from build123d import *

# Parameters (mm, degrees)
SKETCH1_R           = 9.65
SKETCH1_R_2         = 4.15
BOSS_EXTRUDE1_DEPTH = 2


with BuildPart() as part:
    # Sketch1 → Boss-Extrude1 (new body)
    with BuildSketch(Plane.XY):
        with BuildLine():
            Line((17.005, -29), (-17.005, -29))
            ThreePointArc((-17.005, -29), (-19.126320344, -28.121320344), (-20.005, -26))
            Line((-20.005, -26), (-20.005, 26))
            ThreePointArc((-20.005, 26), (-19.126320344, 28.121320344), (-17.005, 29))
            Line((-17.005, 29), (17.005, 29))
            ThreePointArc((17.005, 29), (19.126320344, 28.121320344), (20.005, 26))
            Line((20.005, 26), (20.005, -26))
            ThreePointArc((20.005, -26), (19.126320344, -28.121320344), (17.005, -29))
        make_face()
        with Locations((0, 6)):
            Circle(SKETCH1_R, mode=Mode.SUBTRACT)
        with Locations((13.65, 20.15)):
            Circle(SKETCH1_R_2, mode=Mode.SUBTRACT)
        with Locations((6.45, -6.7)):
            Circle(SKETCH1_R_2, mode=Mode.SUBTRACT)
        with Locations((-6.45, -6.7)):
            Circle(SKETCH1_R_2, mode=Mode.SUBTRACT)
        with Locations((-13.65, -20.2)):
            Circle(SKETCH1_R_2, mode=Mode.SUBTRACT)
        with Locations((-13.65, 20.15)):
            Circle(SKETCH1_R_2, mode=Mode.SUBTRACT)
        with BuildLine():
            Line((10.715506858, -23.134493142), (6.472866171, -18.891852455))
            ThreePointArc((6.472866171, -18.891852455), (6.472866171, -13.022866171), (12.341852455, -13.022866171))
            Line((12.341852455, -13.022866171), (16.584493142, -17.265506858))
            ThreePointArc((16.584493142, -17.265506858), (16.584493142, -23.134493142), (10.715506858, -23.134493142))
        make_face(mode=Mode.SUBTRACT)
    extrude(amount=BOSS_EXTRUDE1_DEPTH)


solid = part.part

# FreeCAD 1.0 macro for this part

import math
import FreeCAD as App
import Part
import Sketcher

V = App.Vector
Q = App.Units.Quantity

doc = App.newDocument("Part")
params = doc.addObject("Spreadsheet::Sheet", "Params")
for row, (alias, value) in enumerate([
    ("sketch1_radius", "3 mm"),
    ("sketch1_diameter", "8.3 mm"),
    ("sketch1_diameter2", "19.3 mm"),
    ("sketch1_height", "52 mm"),
    ("sketch1_length", "6 mm"),
    ("pad1_length", "2 mm"),
], start=1):
    params.set(f"A{row}", alias)
    params.set(f"B{row}", "=" + value)
    params.setAlias(f"B{row}", alias)

body = doc.addObject("PartDesign::Body", "Body")

# Sketch on XY plane
sketch1 = body.newObject("Sketcher::SketchObject", "Sketch")
sketch1.AttachmentSupport = (doc.getObject("XY_Plane"), [""])
sketch1.MapMode = "FlatFace"
sketch1.addGeometry([
    Part.LineSegment(V(-17.005, -29, 0), V(17.005, -29, 0)),  # 0
    Part.ArcOfCircle(Part.Circle(V(17.005, -26, 0), V(0, 0, 1), 3), math.radians(-90), math.radians(0)),  # 1
    Part.LineSegment(V(20.005, -26, 0), V(20.005, 26, 0)),  # 2
    Part.ArcOfCircle(Part.Circle(V(17.005, 26, 0), V(0, 0, 1), 3), math.radians(0), math.radians(90)),  # 3
    Part.LineSegment(V(17.005, 29, 0), V(-17.005, 29, 0)),  # 4
    Part.ArcOfCircle(Part.Circle(V(-17.005, 26, 0), V(0, 0, 1), 3), math.radians(90), math.radians(180)),  # 5
    Part.LineSegment(V(-20.005, 26, 0), V(-20.005, -26, 0)),  # 6
    Part.ArcOfCircle(Part.Circle(V(-17.005, -26, 0), V(0, 0, 1), 3), math.radians(180), math.radians(270)),  # 7
    Part.LineSegment(V(10.715507, -23.134493, 0), V(6.472866, -18.891852, 0)),  # 8
    Part.ArcOfCircle(Part.Circle(V(9.407359, -15.957359, 0), V(0, 0, 1), 4.15), math.radians(45), math.radians(225)),  # 9
    Part.LineSegment(V(12.341852, -13.022866, 0), V(16.584493, -17.265507, 0)),  # 10
    Part.ArcOfCircle(Part.Circle(V(13.65, -20.2, 0), V(0, 0, 1), 4.15), math.radians(-135), math.radians(45)),  # 11
    Part.Circle(V(6.45, -6.7, 0), V(0, 0, 1), 4.15),  # 12
    Part.Circle(V(-13.65, -20.2, 0), V(0, 0, 1), 4.15),  # 13
    Part.Circle(V(-6.45, -6.7, 0), V(0, 0, 1), 4.15),  # 14
    Part.Circle(V(13.65, 20.15, 0), V(0, 0, 1), 4.15),  # 15
    Part.Circle(V(0, 6, 0), V(0, 0, 1), 9.65),  # 16
    Part.Circle(V(-13.65, 20.15, 0), V(0, 0, 1), 4.15),  # 17
], False)
sketch1.addConstraint([
    Sketcher.Constraint("Tangent", 0, 2, 1, 1),
    Sketcher.Constraint("Tangent", 1, 2, 2, 1),
    Sketcher.Constraint("Tangent", 2, 2, 3, 1),
    Sketcher.Constraint("Tangent", 3, 2, 4, 1),
    Sketcher.Constraint("Tangent", 4, 2, 5, 1),
    Sketcher.Constraint("Tangent", 5, 2, 6, 1),
    Sketcher.Constraint("Tangent", 6, 2, 7, 1),
    Sketcher.Constraint("Tangent", 7, 2, 0, 1),
    Sketcher.Constraint("Tangent", 8, 2, 9, 2),
    Sketcher.Constraint("Tangent", 9, 1, 10, 1),
    Sketcher.Constraint("Tangent", 10, 2, 11, 2),
    Sketcher.Constraint("Tangent", 11, 1, 8, 1),
    Sketcher.Constraint("Horizontal", 0),
    Sketcher.Constraint("Vertical", 2),
    Sketcher.Constraint("Horizontal", 4),
    Sketcher.Constraint("Vertical", 6),
    Sketcher.Constraint("Equal", 1, 3),
    Sketcher.Constraint("Equal", 3, 5),
    Sketcher.Constraint("Equal", 5, 7),
    Sketcher.Constraint("Equal", 9, 11),
    Sketcher.Constraint("Equal", 11, 12),
    Sketcher.Constraint("Equal", 12, 13),
    Sketcher.Constraint("Equal", 13, 14),
    Sketcher.Constraint("Equal", 14, 15),
    Sketcher.Constraint("Equal", 15, 17),
    Sketcher.Constraint("Symmetric", 1, 3, 5, 3, -1, 1),
    Sketcher.Constraint("Symmetric", 11, 3, 13, 3, -2),
    Sketcher.Constraint("Symmetric", 12, 3, 14, 3, -2),
    Sketcher.Constraint("Symmetric", 15, 3, 17, 3, -2),
    Sketcher.Constraint("PointOnObject", 16, 3, -2),
    Sketcher.Constraint("Vertical", 11, 3, 15, 3),
    Sketcher.Constraint("Radius", 1, 3.0),
    Sketcher.Constraint("Diameter", 12, 8.3),
    Sketcher.Constraint("Diameter", 16, 19.3),
    Sketcher.Constraint("DistanceY", 2, 1, 2, 2, 52.0),
    Sketcher.Constraint("Angle", 8, Q("135 deg")),
    Sketcher.Constraint("Distance", 8, 6.0),
    Sketcher.Constraint("DistanceY", -1, 1, 16, 3, 6.0),
    Sketcher.Constraint("DistanceX", 0, 1, 0, 2, 34.01),
    Sketcher.Constraint("DistanceY", 11, 3, -1, 1, 20.2),
    Sketcher.Constraint("DistanceY", 12, 3, -1, 1, 6.7),
    Sketcher.Constraint("DistanceX", 12, 3, 11, 3, 7.2),
    Sketcher.Constraint("DistanceX", 13, 3, 12, 3, 20.1),
    Sketcher.Constraint("DistanceY", -1, 1, 15, 3, 20.15),
])
sketch1.setExpression("Constraints[31]", "Params.sketch1_radius")
sketch1.setExpression("Constraints[32]", "Params.sketch1_diameter")
sketch1.setExpression("Constraints[33]", "Params.sketch1_diameter2")
sketch1.setExpression("Constraints[34]", "Params.sketch1_height")
sketch1.setExpression("Constraints[36]", "Params.sketch1_length")
pad1 = body.newObject("PartDesign::Pad", "Pad")
pad1.Profile = sketch1
pad1.setExpression("Length", "Params.pad1_length")

doc.recompute()
